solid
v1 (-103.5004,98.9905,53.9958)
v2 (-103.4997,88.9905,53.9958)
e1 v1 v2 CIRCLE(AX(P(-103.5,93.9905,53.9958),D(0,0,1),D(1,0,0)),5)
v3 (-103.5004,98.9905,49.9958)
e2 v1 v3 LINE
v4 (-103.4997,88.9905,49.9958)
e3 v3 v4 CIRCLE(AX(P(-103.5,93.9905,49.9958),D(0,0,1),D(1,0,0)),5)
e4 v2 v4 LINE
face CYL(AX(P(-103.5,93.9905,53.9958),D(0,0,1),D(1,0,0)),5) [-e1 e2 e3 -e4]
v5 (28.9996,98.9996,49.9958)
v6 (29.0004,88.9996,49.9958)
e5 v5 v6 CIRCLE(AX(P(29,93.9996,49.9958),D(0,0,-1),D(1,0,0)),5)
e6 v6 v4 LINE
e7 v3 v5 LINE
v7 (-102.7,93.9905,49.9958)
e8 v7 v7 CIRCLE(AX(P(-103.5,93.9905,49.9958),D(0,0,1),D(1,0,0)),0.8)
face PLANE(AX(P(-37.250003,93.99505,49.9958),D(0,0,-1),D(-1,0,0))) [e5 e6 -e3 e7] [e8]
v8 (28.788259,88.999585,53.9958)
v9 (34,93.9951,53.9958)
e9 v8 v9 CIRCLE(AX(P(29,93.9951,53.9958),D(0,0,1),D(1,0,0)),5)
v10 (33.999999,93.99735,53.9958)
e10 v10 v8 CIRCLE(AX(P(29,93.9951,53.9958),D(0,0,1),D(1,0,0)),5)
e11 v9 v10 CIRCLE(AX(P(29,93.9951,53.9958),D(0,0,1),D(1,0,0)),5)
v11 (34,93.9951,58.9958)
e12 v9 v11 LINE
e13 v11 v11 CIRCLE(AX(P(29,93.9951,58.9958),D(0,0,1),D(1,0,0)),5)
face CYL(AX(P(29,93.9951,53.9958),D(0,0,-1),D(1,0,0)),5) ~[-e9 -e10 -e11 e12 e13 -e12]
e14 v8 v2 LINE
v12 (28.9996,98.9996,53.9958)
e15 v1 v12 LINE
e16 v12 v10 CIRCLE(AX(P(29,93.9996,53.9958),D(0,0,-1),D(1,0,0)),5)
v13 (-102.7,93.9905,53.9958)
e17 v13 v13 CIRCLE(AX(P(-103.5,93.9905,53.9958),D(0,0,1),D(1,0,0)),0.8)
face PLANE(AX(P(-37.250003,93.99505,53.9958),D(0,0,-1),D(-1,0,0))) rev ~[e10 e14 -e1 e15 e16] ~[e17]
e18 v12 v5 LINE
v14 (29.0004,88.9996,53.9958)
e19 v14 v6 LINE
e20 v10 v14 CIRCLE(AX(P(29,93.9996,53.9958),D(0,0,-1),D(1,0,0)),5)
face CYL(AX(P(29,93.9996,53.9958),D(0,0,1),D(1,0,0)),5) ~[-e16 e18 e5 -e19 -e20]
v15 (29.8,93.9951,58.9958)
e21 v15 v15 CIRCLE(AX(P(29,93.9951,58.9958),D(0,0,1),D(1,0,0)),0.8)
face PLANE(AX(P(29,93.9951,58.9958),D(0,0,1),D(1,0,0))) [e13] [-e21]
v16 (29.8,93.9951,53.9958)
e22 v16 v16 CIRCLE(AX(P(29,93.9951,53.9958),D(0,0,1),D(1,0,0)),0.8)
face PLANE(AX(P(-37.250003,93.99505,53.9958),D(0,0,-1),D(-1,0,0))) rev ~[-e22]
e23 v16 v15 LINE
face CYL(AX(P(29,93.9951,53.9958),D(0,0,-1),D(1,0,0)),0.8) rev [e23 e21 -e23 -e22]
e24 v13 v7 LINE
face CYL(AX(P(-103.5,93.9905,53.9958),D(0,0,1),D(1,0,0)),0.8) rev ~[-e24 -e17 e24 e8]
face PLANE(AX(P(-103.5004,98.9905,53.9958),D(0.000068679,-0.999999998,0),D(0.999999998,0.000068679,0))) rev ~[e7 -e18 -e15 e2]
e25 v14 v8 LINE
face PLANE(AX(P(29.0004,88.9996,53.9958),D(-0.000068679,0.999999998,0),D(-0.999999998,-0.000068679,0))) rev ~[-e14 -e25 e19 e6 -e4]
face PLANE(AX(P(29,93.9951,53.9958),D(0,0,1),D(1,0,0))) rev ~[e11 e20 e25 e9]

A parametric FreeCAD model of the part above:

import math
import FreeCAD as App
import Part
import Sketcher
Q = App.Units.Quantity

doc = App.newDocument("Part")
body = doc.addObject("PartDesign::Body", "Body")

sketch1 = body.newObject("Sketcher::SketchObject", "Sketch")
sketch1.AttachmentSupport = (doc.getObject("XY_Plane"), [""])
sketch1.MapMode = "FlatFace"
sketch1.AttachmentOffset = App.Placement(App.Vector(0, 0, 53.9958), App.Rotation())
sketch1.addGeometry([
    Part.LineSegment(App.Vector(29, 99, 0), App.Vector(-103.5, 99, 0)),
    Part.ArcOfCircle(Part.Circle(App.Vector(-103.5, 94, 0), App.Vector(0, 0, 1), 5), math.radians(90), math.radians(270)),
    Part.LineSegment(App.Vector(-103.5, 89, 0), App.Vector(29, 89, 0)),
    Part.ArcOfCircle(Part.Circle(App.Vector(29, 94, 0), App.Vector(0, 0, 1), 5), math.radians(-90), math.radians(90)),
    Part.Circle(App.Vector(-103.5, 94, 0), App.Vector(0, 0, 1), 0.8),
], False)
sketch1.addConstraint([
    Sketcher.Constraint("Tangent", 0, 2, 1, 1),
    Sketcher.Constraint("Tangent", 1, 2, 2, 1),
    Sketcher.Constraint("Tangent", 2, 2, 3, 1),
    Sketcher.Constraint("Tangent", 3, 2, 0, 1),
    Sketcher.Constraint("Coincident", 4, 3, 1, 3),
    Sketcher.Constraint("Equal", 1, 3),
    Sketcher.Constraint("Radius", 1, Q("5 mm")),
    Sketcher.Constraint("Diameter", 4, Q("1.6 mm")),
    Sketcher.Constraint("DistanceX", -1, 1, 3, 3, Q("29 mm")),
    Sketcher.Constraint("Distance", 0, Q("132.5 mm")),
    Sketcher.Constraint("DistanceY", 1, 3, 3, 3, Q("0.009 mm")),
    Sketcher.Constraint("DistanceY", -1, 1, 1, 3, Q("93.9905 mm")),
])
pad1 = body.newObject("PartDesign::Pad", "Pad")
pad1.Profile = sketch1
pad1.Length = 4
pad1.Reversed = True

sketch2 = body.newObject("Sketcher::SketchObject", "Sketch001")
sketch2.AttachmentSupport = (doc.getObject("XY_Plane"), [""])
sketch2.MapMode = "FlatFace"
sketch2.AttachmentOffset = App.Placement(App.Vector(0, 0, 53.9958), App.Rotation())
sketch2.addGeometry([
    Part.Circle(App.Vector(29, 94, 0), App.Vector(0, 0, 1), 5),
    Part.Circle(App.Vector(29, 94, 0), App.Vector(0, 0, 1), 0.8),
], False)
sketch2.addConstraint([
    Sketcher.Constraint("Coincident", 1, 3, 0, 3),
    Sketcher.Constraint("Diameter", 0, Q("10 mm")),
    Sketcher.Constraint("Diameter", 1, Q("1.6 mm")),
    Sketcher.Constraint("DistanceX", -1, 1, 0, 3, Q("29 mm")),
    Sketcher.Constraint("DistanceY", -1, 1, 0, 3, Q("93.995 mm")),
])
pad2 = body.newObject("PartDesign::Pad", "Pad001")
pad2.Profile = sketch2
pad2.Length = 5

doc.recompute()
